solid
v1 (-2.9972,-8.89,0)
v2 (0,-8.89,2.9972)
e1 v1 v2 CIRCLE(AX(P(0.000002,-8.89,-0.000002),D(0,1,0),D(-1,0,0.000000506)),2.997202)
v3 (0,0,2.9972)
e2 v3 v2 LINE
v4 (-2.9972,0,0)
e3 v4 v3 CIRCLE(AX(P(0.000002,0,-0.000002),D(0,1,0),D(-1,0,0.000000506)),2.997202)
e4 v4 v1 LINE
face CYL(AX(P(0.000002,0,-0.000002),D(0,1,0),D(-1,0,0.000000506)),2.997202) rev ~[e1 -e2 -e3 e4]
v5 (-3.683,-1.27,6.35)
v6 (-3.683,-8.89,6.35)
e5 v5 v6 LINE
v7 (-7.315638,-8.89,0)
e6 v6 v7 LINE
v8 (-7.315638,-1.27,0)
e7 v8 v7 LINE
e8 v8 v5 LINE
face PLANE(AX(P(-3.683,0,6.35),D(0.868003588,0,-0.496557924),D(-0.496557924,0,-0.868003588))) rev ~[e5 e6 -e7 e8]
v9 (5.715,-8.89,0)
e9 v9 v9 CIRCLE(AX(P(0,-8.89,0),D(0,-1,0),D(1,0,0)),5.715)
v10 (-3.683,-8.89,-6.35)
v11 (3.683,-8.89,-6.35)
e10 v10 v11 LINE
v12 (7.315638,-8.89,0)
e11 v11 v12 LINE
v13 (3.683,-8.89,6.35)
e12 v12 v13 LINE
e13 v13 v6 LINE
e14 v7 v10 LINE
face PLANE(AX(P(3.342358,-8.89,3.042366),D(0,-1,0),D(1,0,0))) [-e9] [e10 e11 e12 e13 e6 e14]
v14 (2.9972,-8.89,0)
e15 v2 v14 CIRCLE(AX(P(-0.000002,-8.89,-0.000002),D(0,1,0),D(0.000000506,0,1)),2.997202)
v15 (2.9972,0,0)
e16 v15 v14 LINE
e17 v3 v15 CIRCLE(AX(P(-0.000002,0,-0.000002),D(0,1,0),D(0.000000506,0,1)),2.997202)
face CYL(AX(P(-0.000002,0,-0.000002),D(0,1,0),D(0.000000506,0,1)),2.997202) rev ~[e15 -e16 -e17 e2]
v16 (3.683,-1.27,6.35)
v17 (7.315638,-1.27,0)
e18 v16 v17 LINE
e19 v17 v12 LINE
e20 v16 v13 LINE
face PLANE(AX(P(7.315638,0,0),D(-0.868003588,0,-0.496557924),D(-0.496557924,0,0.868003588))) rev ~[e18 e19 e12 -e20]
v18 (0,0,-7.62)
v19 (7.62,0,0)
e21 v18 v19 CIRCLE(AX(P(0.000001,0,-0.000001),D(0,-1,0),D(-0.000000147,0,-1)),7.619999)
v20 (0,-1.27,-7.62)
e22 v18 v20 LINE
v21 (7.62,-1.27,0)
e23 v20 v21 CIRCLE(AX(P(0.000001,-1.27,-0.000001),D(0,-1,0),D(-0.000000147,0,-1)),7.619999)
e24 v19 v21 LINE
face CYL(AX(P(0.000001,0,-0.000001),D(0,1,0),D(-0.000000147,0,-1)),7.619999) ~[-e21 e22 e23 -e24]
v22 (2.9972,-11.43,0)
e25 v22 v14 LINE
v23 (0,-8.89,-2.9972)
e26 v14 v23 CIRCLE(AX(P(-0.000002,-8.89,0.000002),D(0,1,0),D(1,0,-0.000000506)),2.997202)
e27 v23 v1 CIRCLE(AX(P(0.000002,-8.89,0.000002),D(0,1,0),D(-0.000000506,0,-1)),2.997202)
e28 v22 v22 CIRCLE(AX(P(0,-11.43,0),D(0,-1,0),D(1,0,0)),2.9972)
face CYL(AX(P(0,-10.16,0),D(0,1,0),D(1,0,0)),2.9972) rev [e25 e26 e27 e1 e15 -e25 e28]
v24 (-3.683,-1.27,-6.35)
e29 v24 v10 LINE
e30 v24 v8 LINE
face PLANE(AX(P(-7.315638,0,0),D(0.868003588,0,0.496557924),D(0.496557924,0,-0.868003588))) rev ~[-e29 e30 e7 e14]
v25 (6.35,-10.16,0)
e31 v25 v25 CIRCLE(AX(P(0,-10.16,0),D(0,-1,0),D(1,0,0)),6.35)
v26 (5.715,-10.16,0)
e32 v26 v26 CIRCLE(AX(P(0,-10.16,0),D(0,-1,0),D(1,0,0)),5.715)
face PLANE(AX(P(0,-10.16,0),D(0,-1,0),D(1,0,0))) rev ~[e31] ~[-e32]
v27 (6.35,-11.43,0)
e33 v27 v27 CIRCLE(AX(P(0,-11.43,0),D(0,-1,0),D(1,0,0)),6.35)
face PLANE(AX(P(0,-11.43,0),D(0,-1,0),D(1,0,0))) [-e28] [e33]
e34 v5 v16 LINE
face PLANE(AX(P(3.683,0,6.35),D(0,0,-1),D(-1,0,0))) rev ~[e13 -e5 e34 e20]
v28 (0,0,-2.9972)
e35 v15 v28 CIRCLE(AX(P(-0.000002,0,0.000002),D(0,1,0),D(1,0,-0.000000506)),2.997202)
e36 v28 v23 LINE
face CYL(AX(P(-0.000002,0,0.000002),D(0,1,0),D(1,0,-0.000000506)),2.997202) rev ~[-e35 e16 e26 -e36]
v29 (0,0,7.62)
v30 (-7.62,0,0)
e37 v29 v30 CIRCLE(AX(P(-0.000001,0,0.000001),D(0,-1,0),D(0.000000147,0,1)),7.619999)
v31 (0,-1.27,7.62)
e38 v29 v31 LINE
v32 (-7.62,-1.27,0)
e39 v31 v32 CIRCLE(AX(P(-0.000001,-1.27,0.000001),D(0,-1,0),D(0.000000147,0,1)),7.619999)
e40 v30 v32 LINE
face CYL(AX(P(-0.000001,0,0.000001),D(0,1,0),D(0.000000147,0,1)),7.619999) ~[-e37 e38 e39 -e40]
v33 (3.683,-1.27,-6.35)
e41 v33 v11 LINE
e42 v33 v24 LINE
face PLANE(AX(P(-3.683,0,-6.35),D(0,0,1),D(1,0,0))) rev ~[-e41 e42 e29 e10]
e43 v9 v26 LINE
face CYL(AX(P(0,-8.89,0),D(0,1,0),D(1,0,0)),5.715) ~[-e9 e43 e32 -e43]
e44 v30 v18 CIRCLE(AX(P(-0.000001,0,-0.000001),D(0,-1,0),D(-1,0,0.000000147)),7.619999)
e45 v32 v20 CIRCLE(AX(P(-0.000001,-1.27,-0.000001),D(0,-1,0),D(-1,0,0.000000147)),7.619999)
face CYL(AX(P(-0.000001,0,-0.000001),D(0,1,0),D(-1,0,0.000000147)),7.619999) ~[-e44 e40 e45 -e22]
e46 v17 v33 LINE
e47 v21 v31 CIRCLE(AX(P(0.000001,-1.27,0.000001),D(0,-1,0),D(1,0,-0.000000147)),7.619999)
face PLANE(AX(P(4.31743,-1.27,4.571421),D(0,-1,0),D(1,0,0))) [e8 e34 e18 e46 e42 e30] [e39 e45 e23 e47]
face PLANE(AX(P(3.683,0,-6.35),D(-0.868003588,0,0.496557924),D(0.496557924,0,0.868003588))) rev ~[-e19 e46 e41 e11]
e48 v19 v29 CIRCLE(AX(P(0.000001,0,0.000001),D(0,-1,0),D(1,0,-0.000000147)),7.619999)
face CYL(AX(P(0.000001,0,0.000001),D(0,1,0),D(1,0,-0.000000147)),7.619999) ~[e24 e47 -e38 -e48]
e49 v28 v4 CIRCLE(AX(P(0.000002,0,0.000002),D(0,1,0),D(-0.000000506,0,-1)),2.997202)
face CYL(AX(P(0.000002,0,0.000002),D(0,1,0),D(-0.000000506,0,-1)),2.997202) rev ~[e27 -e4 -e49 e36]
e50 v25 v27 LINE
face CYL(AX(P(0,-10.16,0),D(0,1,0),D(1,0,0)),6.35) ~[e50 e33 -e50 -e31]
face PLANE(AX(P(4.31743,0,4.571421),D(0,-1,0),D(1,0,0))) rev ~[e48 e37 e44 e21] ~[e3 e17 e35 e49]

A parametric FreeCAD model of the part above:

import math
import FreeCAD as App
import Part
import Sketcher
Q = App.Units.Quantity


def add_polygon(sketch, points):
    """Adds a closed chain of lines whose ends are joined by coincident constraints."""
    first, n = sketch.GeometryCount, len(points)
    for a, b in zip(points, points[1:] + points[:1]):
        sketch.addGeometry(Part.LineSegment(App.Vector(*a, 0), App.Vector(*b, 0)), False)
    for i in range(n):
        sketch.addConstraint(Sketcher.Constraint("Coincident", first + i, 2, first + (i + 1) % n, 1))

doc = App.newDocument("Part")
body = doc.addObject("PartDesign::Body", "Body")

# Sketch on XZ plane
sketch1 = body.newObject("Sketcher::SketchObject", "Sketch")
sketch1.AttachmentSupport = (doc.getObject("XZ_Plane"), [""])
sketch1.MapMode = "FlatFace"
sketch1.addGeometry(Part.ArcOfCircle(Part.Circle(App.Vector(0, 0, 0), App.Vector(0, 0, 1), 8), math.radians(0), math.radians(90)), False)  # 0
sketch1.addGeometry(Part.ArcOfCircle(Part.Circle(App.Vector(0, 0, 0), App.Vector(0, 0, 1), 8), math.radians(90), math.radians(180)), False)  # 1
sketch1.addGeometry(Part.ArcOfCircle(Part.Circle(App.Vector(0, 0, 0), App.Vector(0, 0, 1), 8), math.radians(180), math.radians(270)), False)  # 2
sketch1.addGeometry(Part.ArcOfCircle(Part.Circle(App.Vector(0, 0, 0), App.Vector(0, 0, 1), 8), math.radians(-90), math.radians(0)), False)  # 3
add_polygon(sketch1, [(-7, 0), (-4, 6), (4, 6), (7, 0), (4, -6), (-4, -6)])  # lines 4-9
sketch1.addConstraint(Sketcher.Constraint("Tangent", 0, 2, 1, 1))
sketch1.addConstraint(Sketcher.Constraint("Tangent", 1, 2, 2, 1))
sketch1.addConstraint(Sketcher.Constraint("Tangent", 2, 2, 3, 1))
sketch1.addConstraint(Sketcher.Constraint("Tangent", 3, 2, 0, 1))
sketch1.addConstraint(Sketcher.Constraint("Horizontal", 5))
sketch1.addConstraint(Sketcher.Constraint("Horizontal", 8))
sketch1.addConstraint(Sketcher.Constraint("Coincident", 0, 3, -1, 1))
sketch1.addConstraint(Sketcher.Constraint("Equal", 0, 1))
sketch1.addConstraint(Sketcher.Constraint("Symmetric", 4, 2, 7, 2, -1, 1))
sketch1.addConstraint(Sketcher.Constraint("Symmetric", 6, 2, 9, 2, -1, 1))
sketch1.addConstraint(Sketcher.Constraint("PointOnObject", 0, 2, -2))
sketch1.addConstraint(Sketcher.Constraint("PointOnObject", 1, 2, -1))
sketch1.addConstraint(Sketcher.Constraint("PointOnObject", 2, 2, -2))
sketch1.addConstraint(Sketcher.Constraint("PointOnObject", 3, 2, -1))
sketch1.addConstraint(Sketcher.Constraint("PointOnObject", 6, 2, -1))
sketch1.addConstraint(Sketcher.Constraint("Parallel", 6, 9))
sketch1.addConstraint(Sketcher.Constraint("Vertical", 5, 2, 7, 2))
sketch1.addConstraint(Sketcher.Constraint("Radius", 0, Q("0.3 in")))
sketch1.addConstraint(Sketcher.Constraint("DistanceX", 5, 1, 5, 2, Q("0.29 in")))
sketch1.addConstraint(Sketcher.Constraint("DistanceY", -1, 1, 4, 2, Q("0.25 in")))
sketch1.addConstraint(Sketcher.Constraint("DistanceX", 6, 2, 3, 2, Q("0.304362 mm")))
pad1 = body.newObject("PartDesign::Pad", "Pad")
pad1.Profile = sketch1
pad1.Length = Q("0.05 in")

# Sketch on XZ plane
sketch2 = body.newObject("Sketcher::SketchObject", "Sketch001")
sketch2.AttachmentSupport = (doc.getObject("XZ_Plane"), [""])
sketch2.MapMode = "FlatFace"
add_polygon(sketch2, [(3.7, 6.3), (-3.7, 6.3), (-7.3, 0), (-3.7, -6.3), (3.7, -6.3), (7.3, 0)])  # lines 0-5
sketch2.addGeometry(Part.ArcOfCircle(Part.Circle(App.Vector(0, 0, 0), App.Vector(0, 0, 1), 3), math.radians(-180), math.radians(-90)), False)  # 6
sketch2.addGeometry(Part.ArcOfCircle(Part.Circle(App.Vector(0, 0, 0), App.Vector(0, 0, 1), 3), math.radians(90), math.radians(180)), False)  # 7
sketch2.addGeometry(Part.ArcOfCircle(Part.Circle(App.Vector(0, 0, 0), App.Vector(0, 0, 1), 3), math.radians(0), math.radians(90)), False)  # 8
sketch2.addGeometry(Part.ArcOfCircle(Part.Circle(App.Vector(0, 0, 0), App.Vector(0, 0, 1), 3), math.radians(-90), math.radians(0)), False)  # 9
sketch2.addConstraint(Sketcher.Constraint("Tangent", 6, 1, 7, 2))
sketch2.addConstraint(Sketcher.Constraint("Tangent", 7, 1, 8, 2))
sketch2.addConstraint(Sketcher.Constraint("Tangent", 8, 1, 9, 2))
sketch2.addConstraint(Sketcher.Constraint("Tangent", 9, 1, 6, 2))
sketch2.addConstraint(Sketcher.Constraint("Horizontal", 0))
sketch2.addConstraint(Sketcher.Constraint("Horizontal", 3))
sketch2.addConstraint(Sketcher.Constraint("Coincident", 6, 3, -1, 1))
sketch2.addConstraint(Sketcher.Constraint("Equal", 6, 7))
sketch2.addConstraint(Sketcher.Constraint("Symmetric", 0, 2, 3, 2, -1, 1))
sketch2.addConstraint(Sketcher.Constraint("Symmetric", 1, 2, 4, 2, -1, 1))
sketch2.addConstraint(Sketcher.Constraint("PointOnObject", 1, 2, -1))
sketch2.addConstraint(Sketcher.Constraint("PointOnObject", 6, 1, -1))
sketch2.addConstraint(Sketcher.Constraint("PointOnObject", 7, 1, -2))
sketch2.addConstraint(Sketcher.Constraint("PointOnObject", 8, 1, -1))
sketch2.addConstraint(Sketcher.Constraint("PointOnObject", 9, 1, -2))
sketch2.addConstraint(Sketcher.Constraint("Parallel", 2, 5))
sketch2.addConstraint(Sketcher.Constraint("Vertical", 0, 2, 2, 2))
sketch2.addConstraint(Sketcher.Constraint("Radius", 6, Q("0.1180001 in")))
sketch2.addConstraint(Sketcher.Constraint("DistanceX", 0, 2, 0, 1, Q("0.29 in")))
sketch2.addConstraint(Sketcher.Constraint("DistanceY", -1, 1, 0, 2, Q("0.25 in")))
sketch2.addConstraint(Sketcher.Constraint("DistanceX", 1, 2, 0, 2, Q("3.632638 mm")))
pad2 = body.newObject("PartDesign::Pad", "Pad001")
pad2.Profile = sketch2
pad2.Length = Q("0.35 in")

# Sketch on XZ plane
sketch3 = body.newObject("Sketcher::SketchObject", "Sketch002")
sketch3.AttachmentSupport = (doc.getObject("XZ_Plane"), [""])
sketch3.MapMode = "FlatFace"
sketch3.AttachmentOffset = App.Placement(App.Vector(0, 0, 0.35 * 25.4), App.Rotation())
sketch3.addGeometry(Part.Circle(App.Vector(0, 0, 0), App.Vector(0, 0, 1), 5.7), False)
sketch3.addGeometry(Part.Circle(App.Vector(0, 0, 0), App.Vector(0, 0, 1), 3), False)
sketch3.addConstraint(Sketcher.Constraint("Coincident", 0, 3, -1, 1))
sketch3.addConstraint(Sketcher.Constraint("Coincident", 1, 3, -1, 1))
sketch3.addConstraint(Sketcher.Constraint("Diameter", 0, Q("0.45 in")))
sketch3.addConstraint(Sketcher.Constraint("Diameter", 1, Q("0.236 in")))
pad3 = body.newObject("PartDesign::Pad", "Pad002")
pad3.Profile = sketch3
pad3.Length = Q("0.05 in")

# Sketch on XZ plane
sketch4 = body.newObject("Sketcher::SketchObject", "Sketch003")
sketch4.AttachmentSupport = (doc.getObject("XZ_Plane"), [""])
sketch4.MapMode = "FlatFace"
sketch4.AttachmentOffset = App.Placement(App.Vector(0, 0, 0.4 * 25.4), App.Rotation())
sketch4.addGeometry(Part.Circle(App.Vector(0, 0, 0), App.Vector(0, 0, 1), 6.3), False)
sketch4.addGeometry(Part.Circle(App.Vector(0, 0, 0), App.Vector(0, 0, 1), 3), False)
sketch4.addConstraint(Sketcher.Constraint("Coincident", 0, 3, -1, 1))
sketch4.addConstraint(Sketcher.Constraint("Coincident", 1, 3, -1, 1))
sketch4.addConstraint(Sketcher.Constraint("Diameter", 0, Q("0.5 in")))
sketch4.addConstraint(Sketcher.Constraint("Diameter", 1, Q("0.236 in")))
pad4 = body.newObject("PartDesign::Pad", "Pad003")
pad4.Profile = sketch4
pad4.Length = Q("0.05 in")

doc.recompute()
